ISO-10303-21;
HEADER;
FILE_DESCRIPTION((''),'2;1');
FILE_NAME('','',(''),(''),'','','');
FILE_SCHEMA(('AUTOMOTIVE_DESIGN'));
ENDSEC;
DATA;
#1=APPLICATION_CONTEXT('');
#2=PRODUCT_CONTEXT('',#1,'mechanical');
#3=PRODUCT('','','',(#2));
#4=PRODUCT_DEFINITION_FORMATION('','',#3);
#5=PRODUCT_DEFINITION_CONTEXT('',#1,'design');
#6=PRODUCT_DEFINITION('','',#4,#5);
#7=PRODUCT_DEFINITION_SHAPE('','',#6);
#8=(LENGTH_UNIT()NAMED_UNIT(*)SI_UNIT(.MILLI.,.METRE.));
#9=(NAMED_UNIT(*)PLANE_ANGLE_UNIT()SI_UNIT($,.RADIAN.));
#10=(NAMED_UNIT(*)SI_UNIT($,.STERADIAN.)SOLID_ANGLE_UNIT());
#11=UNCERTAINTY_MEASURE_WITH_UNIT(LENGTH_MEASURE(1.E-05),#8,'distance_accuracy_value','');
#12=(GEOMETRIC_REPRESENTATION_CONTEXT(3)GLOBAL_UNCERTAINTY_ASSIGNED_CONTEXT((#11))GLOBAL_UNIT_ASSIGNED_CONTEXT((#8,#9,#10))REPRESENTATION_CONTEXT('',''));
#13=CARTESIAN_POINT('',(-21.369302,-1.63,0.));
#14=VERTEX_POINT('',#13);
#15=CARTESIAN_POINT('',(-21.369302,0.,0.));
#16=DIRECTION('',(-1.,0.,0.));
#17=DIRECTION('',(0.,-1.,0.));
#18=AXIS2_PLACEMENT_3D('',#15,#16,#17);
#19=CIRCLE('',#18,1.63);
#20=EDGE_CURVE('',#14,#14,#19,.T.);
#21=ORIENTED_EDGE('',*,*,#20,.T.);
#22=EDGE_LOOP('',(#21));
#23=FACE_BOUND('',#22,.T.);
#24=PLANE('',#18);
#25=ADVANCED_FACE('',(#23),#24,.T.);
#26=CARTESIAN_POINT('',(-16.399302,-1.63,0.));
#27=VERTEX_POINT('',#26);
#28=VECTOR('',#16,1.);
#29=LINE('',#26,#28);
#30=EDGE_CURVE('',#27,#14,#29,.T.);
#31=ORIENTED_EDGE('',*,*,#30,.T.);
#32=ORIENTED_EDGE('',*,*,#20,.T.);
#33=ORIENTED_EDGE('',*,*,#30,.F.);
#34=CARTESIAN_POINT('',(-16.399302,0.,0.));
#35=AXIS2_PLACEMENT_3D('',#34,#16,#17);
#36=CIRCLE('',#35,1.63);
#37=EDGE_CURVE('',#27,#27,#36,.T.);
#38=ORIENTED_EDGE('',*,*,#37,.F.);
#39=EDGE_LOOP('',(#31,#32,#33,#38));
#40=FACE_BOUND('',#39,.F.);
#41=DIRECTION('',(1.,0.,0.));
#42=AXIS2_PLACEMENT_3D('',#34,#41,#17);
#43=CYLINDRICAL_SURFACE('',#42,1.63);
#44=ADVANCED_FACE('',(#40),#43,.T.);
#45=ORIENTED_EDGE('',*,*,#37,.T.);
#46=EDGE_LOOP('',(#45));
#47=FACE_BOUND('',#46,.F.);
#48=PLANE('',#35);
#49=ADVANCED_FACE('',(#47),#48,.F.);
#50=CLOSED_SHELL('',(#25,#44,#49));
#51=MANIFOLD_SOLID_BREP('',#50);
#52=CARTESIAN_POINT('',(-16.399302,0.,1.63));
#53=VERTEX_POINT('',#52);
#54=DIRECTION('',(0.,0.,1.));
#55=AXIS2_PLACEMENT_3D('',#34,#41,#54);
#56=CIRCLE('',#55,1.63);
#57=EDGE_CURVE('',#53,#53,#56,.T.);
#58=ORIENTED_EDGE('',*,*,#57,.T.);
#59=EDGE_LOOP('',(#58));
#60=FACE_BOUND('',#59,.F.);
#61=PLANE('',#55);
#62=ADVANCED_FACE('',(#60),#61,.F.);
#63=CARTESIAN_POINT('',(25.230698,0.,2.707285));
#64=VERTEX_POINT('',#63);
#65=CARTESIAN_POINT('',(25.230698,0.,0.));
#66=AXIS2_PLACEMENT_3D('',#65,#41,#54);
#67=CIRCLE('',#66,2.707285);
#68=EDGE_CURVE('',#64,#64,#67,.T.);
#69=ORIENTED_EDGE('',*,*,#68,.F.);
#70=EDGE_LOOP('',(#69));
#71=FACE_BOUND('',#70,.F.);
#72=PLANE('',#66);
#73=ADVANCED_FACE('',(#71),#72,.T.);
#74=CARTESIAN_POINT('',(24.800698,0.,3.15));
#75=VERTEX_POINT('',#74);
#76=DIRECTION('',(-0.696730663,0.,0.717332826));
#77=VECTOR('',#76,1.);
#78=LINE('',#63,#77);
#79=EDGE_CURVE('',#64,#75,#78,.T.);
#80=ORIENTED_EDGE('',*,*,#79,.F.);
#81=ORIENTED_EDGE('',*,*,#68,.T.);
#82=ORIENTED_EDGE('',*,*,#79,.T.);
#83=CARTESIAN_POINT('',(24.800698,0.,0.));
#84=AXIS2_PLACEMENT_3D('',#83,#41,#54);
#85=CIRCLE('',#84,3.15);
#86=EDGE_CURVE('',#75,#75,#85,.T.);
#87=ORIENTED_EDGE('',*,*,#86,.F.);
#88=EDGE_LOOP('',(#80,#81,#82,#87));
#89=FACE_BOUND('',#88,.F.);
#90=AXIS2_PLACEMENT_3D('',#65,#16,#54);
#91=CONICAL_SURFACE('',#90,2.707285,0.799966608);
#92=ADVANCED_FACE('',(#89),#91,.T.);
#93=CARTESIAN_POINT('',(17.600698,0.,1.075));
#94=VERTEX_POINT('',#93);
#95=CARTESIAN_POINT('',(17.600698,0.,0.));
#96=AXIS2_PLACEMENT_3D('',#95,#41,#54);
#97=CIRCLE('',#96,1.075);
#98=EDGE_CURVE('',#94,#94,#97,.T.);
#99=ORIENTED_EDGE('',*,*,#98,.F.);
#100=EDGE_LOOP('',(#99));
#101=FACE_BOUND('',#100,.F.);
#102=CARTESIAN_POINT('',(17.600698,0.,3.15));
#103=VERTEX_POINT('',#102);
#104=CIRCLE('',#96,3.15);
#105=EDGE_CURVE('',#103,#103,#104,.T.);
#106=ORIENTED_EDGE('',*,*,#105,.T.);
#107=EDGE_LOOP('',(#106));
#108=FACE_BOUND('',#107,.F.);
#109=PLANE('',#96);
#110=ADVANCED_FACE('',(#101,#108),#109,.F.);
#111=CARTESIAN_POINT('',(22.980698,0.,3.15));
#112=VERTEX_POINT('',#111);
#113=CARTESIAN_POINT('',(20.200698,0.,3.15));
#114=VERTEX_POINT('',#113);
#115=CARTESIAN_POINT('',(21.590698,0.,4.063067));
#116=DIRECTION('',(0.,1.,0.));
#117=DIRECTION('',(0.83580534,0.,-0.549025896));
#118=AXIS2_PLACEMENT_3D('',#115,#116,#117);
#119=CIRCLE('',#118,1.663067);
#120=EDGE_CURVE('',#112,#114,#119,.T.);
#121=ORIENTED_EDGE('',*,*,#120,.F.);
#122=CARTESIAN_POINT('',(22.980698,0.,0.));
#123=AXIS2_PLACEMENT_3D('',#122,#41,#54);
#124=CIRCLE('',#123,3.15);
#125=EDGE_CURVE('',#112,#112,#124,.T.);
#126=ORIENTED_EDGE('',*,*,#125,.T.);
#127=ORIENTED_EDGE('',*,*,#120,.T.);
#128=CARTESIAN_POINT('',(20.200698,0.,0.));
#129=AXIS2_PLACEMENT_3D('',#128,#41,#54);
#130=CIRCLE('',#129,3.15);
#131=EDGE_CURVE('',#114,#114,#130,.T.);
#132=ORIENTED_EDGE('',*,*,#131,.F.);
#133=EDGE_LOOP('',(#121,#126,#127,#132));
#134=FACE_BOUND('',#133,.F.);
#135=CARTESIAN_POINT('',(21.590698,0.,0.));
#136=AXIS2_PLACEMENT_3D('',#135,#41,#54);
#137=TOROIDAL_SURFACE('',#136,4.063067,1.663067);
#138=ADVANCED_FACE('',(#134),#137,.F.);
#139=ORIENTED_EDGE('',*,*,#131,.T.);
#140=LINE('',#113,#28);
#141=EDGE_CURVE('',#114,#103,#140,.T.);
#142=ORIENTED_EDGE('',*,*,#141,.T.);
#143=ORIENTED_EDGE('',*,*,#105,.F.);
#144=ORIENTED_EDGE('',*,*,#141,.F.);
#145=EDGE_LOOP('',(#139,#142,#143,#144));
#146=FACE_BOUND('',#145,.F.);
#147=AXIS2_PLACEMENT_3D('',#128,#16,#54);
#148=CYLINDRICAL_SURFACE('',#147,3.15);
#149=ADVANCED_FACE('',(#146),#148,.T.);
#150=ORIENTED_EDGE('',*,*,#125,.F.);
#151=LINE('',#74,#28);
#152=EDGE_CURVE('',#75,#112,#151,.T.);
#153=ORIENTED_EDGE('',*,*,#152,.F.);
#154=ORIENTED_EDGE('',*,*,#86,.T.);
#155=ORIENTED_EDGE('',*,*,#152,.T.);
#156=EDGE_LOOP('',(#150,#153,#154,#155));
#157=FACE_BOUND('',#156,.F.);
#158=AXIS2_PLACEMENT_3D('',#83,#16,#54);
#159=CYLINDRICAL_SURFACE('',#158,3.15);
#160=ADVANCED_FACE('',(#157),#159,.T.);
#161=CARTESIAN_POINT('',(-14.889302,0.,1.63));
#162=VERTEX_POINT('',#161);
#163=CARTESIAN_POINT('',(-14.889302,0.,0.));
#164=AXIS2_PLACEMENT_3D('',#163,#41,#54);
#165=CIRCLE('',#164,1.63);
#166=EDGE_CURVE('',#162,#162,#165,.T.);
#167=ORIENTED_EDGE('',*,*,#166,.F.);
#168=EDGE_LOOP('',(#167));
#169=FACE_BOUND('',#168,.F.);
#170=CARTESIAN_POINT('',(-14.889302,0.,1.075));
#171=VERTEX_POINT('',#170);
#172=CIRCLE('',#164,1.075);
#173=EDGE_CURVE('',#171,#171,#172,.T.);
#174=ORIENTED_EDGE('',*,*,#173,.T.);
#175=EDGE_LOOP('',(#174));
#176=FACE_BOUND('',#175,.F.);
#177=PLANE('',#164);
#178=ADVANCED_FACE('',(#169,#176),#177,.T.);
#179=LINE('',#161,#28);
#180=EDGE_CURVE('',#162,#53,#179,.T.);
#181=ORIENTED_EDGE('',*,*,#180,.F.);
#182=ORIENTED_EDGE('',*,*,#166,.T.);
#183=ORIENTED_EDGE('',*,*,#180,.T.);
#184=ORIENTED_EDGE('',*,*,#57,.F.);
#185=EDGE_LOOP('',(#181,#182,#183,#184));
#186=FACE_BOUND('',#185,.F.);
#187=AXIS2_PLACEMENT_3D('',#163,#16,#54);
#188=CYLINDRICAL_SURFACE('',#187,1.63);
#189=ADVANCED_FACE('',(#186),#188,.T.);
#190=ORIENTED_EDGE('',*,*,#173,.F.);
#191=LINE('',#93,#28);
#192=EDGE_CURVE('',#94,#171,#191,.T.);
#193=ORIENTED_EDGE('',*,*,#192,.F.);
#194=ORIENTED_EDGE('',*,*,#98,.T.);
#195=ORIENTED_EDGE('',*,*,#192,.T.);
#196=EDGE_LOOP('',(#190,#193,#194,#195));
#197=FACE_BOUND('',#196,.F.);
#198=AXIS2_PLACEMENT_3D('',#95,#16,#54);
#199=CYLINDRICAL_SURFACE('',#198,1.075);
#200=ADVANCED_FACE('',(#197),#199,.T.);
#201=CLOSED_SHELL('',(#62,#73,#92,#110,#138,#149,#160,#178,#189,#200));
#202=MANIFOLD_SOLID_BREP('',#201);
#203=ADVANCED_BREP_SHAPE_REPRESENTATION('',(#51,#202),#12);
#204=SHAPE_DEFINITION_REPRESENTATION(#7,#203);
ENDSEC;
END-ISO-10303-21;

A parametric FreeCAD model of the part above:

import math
import FreeCAD as App
import Part
import Sketcher
from FreeCAD import Vector
Q = App.Units.Quantity

doc = App.newDocument("Part")
body = doc.addObject("PartDesign::Body", "Body")

# Sketch on XZ plane
sketch1 = body.newObject("Sketcher::SketchObject", "Sketch")
sketch1.AttachmentSupport = (doc.getObject("XZ_Plane"), [""])
sketch1.MapMode = "FlatFace"
sketch1.addGeometry(Part.LineSegment(Vector(-16.399302, 1.63, 0), Vector(-16.399302, 0, 0)), False)
sketch1.addGeometry(Part.LineSegment(Vector(-16.399302, 0, 0), Vector(25.230698, 0, 0)), False)
sketch1.addGeometry(Part.LineSegment(Vector(25.230698, 0, 0), Vector(25.230698, 2.707285, 0)), False)
sketch1.addGeometry(Part.LineSegment(Vector(25.230698, 2.707285, 0), Vector(24.800698, 3.15, 0)), False)
sketch1.addGeometry(Part.LineSegment(Vector(24.800698, 3.15, 0), Vector(22.980698, 3.15, 0)), False)
sketch1.addGeometry(Part.ArcOfCircle(Part.Circle(Vector(21.590698, 4.063067, 0), Vector(0, 0, 1), 1.663067), math.radians(-146.699789), math.radians(-33.300211)), False)
sketch1.addGeometry(Part.LineSegment(Vector(20.200698, 3.15, 0), Vector(17.600698, 3.15, 0)), False)
sketch1.addGeometry(Part.LineSegment(Vector(17.600698, 3.15, 0), Vector(17.600698, 1.075, 0)), False)
sketch1.addGeometry(Part.LineSegment(Vector(17.600698, 1.075, 0), Vector(-14.889302, 1.075, 0)), False)
sketch1.addGeometry(Part.LineSegment(Vector(-14.889302, 1.075, 0), Vector(-14.889302, 1.63, 0)), False)
sketch1.addGeometry(Part.LineSegment(Vector(-14.889302, 1.63, 0), Vector(-16.399302, 1.63, 0)), False)
sketch1.addConstraint(Sketcher.Constraint("Coincident", 0, 2, 1, 1))
sketch1.addConstraint(Sketcher.Constraint("Coincident", 1, 2, 2, 1))
sketch1.addConstraint(Sketcher.Constraint("Coincident", 2, 2, 3, 1))
sketch1.addConstraint(Sketcher.Constraint("Coincident", 3, 2, 4, 1))
sketch1.addConstraint(Sketcher.Constraint("Coincident", 4, 2, 5, 2))
sketch1.addConstraint(Sketcher.Constraint("Coincident", 5, 1, 6, 1))
sketch1.addConstraint(Sketcher.Constraint("Coincident", 6, 2, 7, 1))
sketch1.addConstraint(Sketcher.Constraint("Coincident", 7, 2, 8, 1))
sketch1.addConstraint(Sketcher.Constraint("Coincident", 8, 2, 9, 1))
sketch1.addConstraint(Sketcher.Constraint("Coincident", 9, 2, 10, 1))
sketch1.addConstraint(Sketcher.Constraint("Coincident", 10, 2, 0, 1))
sketch1.addConstraint(Sketcher.Constraint("Vertical", 0))
sketch1.addConstraint(Sketcher.Constraint("Horizontal", 1))
sketch1.addConstraint(Sketcher.Constraint("Vertical", 2))
sketch1.addConstraint(Sketcher.Constraint("Horizontal", 4))
sketch1.addConstraint(Sketcher.Constraint("Horizontal", 6))
sketch1.addConstraint(Sketcher.Constraint("Vertical", 7))
sketch1.addConstraint(Sketcher.Constraint("Horizontal", 8))
sketch1.addConstraint(Sketcher.Constraint("Vertical", 9))
sketch1.addConstraint(Sketcher.Constraint("Horizontal", 10))
sketch1.addConstraint(Sketcher.Constraint("PointOnObject", 0, 2, -1))
sketch1.addConstraint(Sketcher.Constraint("Horizontal", 4, 2, 5, 1))
sketch1.addConstraint(Sketcher.Constraint("DistanceX", 6, 2, 6, 1, Q("2.6 mm")))
sketch1.addConstraint(Sketcher.Constraint("DistanceX", 10, 2, 7, 2, Q("34 mm")))
sketch1.addConstraint(Sketcher.Constraint("DistanceX", 1, 1, 1, 2, Q("41.63 mm")))
sketch1.addConstraint(Sketcher.Constraint("DistanceX", 4, 2, 4, 1, Q("1.82 mm")))
sketch1.addConstraint(Sketcher.Constraint("DistanceX", 8, 2, 8, 1, Q("32.49 mm")))
sketch1.addConstraint(Sketcher.Constraint("DistanceY", 0, 2, 0, 1, Q("1.63 mm")))
sketch1.addConstraint(Sketcher.Constraint("DistanceX", 0, 2, 3, 2, Q("41.2 mm")))
sketch1.addConstraint(Sketcher.Constraint("DistanceY", 7, 2, 7, 1, Q("2.075 mm")))
sketch1.addConstraint(Sketcher.Constraint("DistanceY", 9, 1, 9, 2, Q("0.555 mm")))
sketch1.addConstraint(Sketcher.Constraint("Radius", 5, Q("1.663067 mm")))
sketch1.addConstraint(Sketcher.Constraint("DistanceX", -1, 1, 5, 3, Q("21.590698 mm")))
sketch1.addConstraint(Sketcher.Constraint("Distance", 3, Q("0.617168 mm")))
revolution = body.newObject("PartDesign::Revolution", "Revolution")
revolution.Profile = sketch1
revolution.ReferenceAxis = (sketch1, ["H_Axis"])
revolution.Angle = 360
body2 = doc.addObject("PartDesign::Body", "Body001")

# Sketch on YZ plane
sketch2 = body2.newObject("Sketcher::SketchObject", "Sketch001")
sketch2.AttachmentSupport = (doc.getObject("YZ_Plane001"), [""])
sketch2.MapMode = "FlatFace"
sketch2.AttachmentOffset = App.Placement(Vector(0, 0, -16.399302), App.Rotation())
sketch2.addGeometry(Part.Circle(Vector(0, 0, 0), Vector(0, 0, 1), 1.63), False)
sketch2.addConstraint(Sketcher.Constraint("Coincident", 0, 3, -1, 1))
sketch2.addConstraint(Sketcher.Constraint("Diameter", 0, Q("3.26 mm")))
pad1 = body2.newObject("PartDesign::Pad", "Pad")
pad1.Profile = sketch2
pad1.Length = 4.97
pad1.Reversed = True

doc.recompute()
